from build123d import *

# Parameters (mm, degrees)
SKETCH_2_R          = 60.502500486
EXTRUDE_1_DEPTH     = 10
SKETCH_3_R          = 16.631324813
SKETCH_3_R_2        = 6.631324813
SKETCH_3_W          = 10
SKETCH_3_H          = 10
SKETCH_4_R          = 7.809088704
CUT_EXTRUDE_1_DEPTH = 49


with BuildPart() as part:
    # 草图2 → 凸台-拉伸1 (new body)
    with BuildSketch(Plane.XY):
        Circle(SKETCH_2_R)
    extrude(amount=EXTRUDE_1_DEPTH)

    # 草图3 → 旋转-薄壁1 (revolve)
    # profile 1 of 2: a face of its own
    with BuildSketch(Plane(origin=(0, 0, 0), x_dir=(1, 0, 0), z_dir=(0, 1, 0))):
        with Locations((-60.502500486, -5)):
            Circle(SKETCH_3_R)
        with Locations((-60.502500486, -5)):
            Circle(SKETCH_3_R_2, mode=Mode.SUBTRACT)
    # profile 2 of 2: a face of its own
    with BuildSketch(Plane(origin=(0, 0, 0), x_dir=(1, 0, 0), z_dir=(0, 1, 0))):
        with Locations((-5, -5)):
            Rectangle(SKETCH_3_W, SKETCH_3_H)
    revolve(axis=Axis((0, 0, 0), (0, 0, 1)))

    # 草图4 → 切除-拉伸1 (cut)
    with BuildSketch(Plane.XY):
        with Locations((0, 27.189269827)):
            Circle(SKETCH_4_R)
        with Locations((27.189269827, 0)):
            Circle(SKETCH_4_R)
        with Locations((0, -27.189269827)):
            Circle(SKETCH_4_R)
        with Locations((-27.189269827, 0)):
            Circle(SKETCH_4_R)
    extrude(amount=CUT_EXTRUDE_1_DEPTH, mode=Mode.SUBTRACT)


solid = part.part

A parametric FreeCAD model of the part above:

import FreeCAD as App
import Part
import Sketcher


def add_polygon(sketch, points):
    """Adds a closed chain of lines whose ends are joined by coincident constraints."""
    first, n = sketch.GeometryCount, len(points)
    for a, b in zip(points, points[1:] + points[:1]):
        sketch.addGeometry(Part.LineSegment(App.Vector(*a, 0), App.Vector(*b, 0)), False)
    for i in range(n):
        sketch.addConstraint(Sketcher.Constraint("Coincident", first + i, 2, first + (i + 1) % n, 1))

doc = App.newDocument("Part")
params = doc.addObject("Spreadsheet::Sheet", "Params")
for row, (alias, value) in enumerate([
    ("pad1_length", "10 mm"),
    ("sketch2_width", "10 mm"),
    ("revolution_angle", "360 deg"),
    ("pocket1_length", "49 mm"),
], start=1):
    params.set(f"A{row}", alias)
    params.set(f"B{row}", "=" + value)
    params.setAlias(f"B{row}", alias)

body = doc.addObject("PartDesign::Body", "Body")

# Sketch on XY plane
sketch1 = doc.addObject("Sketcher::SketchObject", "Sketch")
body.addObject(sketch1)
sketch1.AttachmentSupport = (doc.XY_Plane, [""])
sketch1.MapMode = "FlatFace"
sketch1.addGeometry(Part.Circle(App.Vector(0, 0, 0), App.Vector(0, 0, 1), 61), False)
sketch1.addConstraint(Sketcher.Constraint("Coincident", 0, 3, -1, 1))
sketch1.addConstraint(Sketcher.Constraint("Diameter", 0, 121.005001))
pad1 = doc.addObject("PartDesign::Pad", "Pad")
body.addObject(pad1)
pad1.Profile = sketch1
pad1.setExpression("Length", "Params.pad1_length")

# Sketch on XZ plane
sketch2 = doc.addObject("Sketcher::SketchObject", "Sketch001")
body.addObject(sketch2)
sketch2.AttachmentSupport = (doc.XZ_Plane, [""])
sketch2.MapMode = "FlatFace"
sketch2.addGeometry(Part.Circle(App.Vector(-61, 5, 0), App.Vector(0, 0, 1), 17), False)  # 0
sketch2.addGeometry(Part.Circle(App.Vector(-61, 5, 0), App.Vector(0, 0, 1), 7), False)  # 1
add_polygon(sketch2, [(-10, 0), (-10, 10), (0, 10), (0, 0)])  # lines 2-5
sketch2.addConstraint(Sketcher.Constraint("Vertical", 2))
sketch2.addConstraint(Sketcher.Constraint("Horizontal", 3))
sketch2.addConstraint(Sketcher.Constraint("Vertical", 4))
sketch2.addConstraint(Sketcher.Constraint("Horizontal", 5))
sketch2.addConstraint(Sketcher.Constraint("Coincident", 4, 2, -1, 1))
sketch2.addConstraint(Sketcher.Constraint("Coincident", 1, 3, 0, 3))
sketch2.addConstraint(Sketcher.Constraint("Equal", 5, 2))
sketch2.addConstraint(Sketcher.Constraint("DistanceX", 3, 1, 3, 2, 10.0))
sketch2.addConstraint(Sketcher.Constraint("DistanceY", -1, 1, 0, 3, 5.0))
sketch2.addConstraint(Sketcher.Constraint("Diameter", 0, 33.26265))
sketch2.addConstraint(Sketcher.Constraint("Diameter", 1, 13.26265))
sketch2.addConstraint(Sketcher.Constraint("DistanceX", 0, 3, -1, 1, 60.5025))
sketch2.setExpression("Constraints[11]", "Params.sketch2_width")
revolution = doc.addObject("PartDesign::Revolution", "Revolution")
body.addObject(revolution)
revolution.Profile = sketch2
revolution.ReferenceAxis = (sketch2, ["V_Axis"])
revolution.setExpression("Angle", "Params.revolution_angle")

# Sketch on XY plane
sketch3 = doc.addObject("Sketcher::SketchObject", "Sketch002")
body.addObject(sketch3)
sketch3.AttachmentSupport = (doc.XY_Plane, [""])
sketch3.MapMode = "FlatFace"
sketch3.addGeometry(Part.Circle(App.Vector(0, 27, 0), App.Vector(0, 0, 1), 8), False)
sketch3.addGeometry(Part.Circle(App.Vector(27, 0, 0), App.Vector(0, 0, 1), 8), False)
sketch3.addGeometry(Part.Circle(App.Vector(0, -27, 0), App.Vector(0, 0, 1), 8), False)
sketch3.addGeometry(Part.Circle(App.Vector(-27, 0, 0), App.Vector(0, 0, 1), 8), False)
sketch3.addConstraint(Sketcher.Constraint("Equal", 0, 1))
sketch3.addConstraint(Sketcher.Constraint("Equal", 1, 2))
sketch3.addConstraint(Sketcher.Constraint("Equal", 2, 3))
sketch3.addConstraint(Sketcher.Constraint("Symmetric", 0, 3, 2, 3, -1, 1))
sketch3.addConstraint(Sketcher.Constraint("Symmetric", 1, 3, 3, 3, -1, 1))
sketch3.addConstraint(Sketcher.Constraint("PointOnObject", 0, 3, -2))
sketch3.addConstraint(Sketcher.Constraint("PointOnObject", 1, 3, -1))
sketch3.addConstraint(Sketcher.Constraint("Diameter", 0, 15.618177))
sketch3.addConstraint(Sketcher.Constraint("DistanceY", -1, 1, 0, 3, 27.18927))
sketch3.addConstraint(Sketcher.Constraint("DistanceX", -1, 1, 1, 3, 27.18927))
pocket1 = doc.addObject("PartDesign::Pocket", "Pocket")
body.addObject(pocket1)
pocket1.Profile = sketch3
pocket1.setExpression("Length", "Params.pocket1_length")
pocket1.Reversed = True

doc.recompute()
